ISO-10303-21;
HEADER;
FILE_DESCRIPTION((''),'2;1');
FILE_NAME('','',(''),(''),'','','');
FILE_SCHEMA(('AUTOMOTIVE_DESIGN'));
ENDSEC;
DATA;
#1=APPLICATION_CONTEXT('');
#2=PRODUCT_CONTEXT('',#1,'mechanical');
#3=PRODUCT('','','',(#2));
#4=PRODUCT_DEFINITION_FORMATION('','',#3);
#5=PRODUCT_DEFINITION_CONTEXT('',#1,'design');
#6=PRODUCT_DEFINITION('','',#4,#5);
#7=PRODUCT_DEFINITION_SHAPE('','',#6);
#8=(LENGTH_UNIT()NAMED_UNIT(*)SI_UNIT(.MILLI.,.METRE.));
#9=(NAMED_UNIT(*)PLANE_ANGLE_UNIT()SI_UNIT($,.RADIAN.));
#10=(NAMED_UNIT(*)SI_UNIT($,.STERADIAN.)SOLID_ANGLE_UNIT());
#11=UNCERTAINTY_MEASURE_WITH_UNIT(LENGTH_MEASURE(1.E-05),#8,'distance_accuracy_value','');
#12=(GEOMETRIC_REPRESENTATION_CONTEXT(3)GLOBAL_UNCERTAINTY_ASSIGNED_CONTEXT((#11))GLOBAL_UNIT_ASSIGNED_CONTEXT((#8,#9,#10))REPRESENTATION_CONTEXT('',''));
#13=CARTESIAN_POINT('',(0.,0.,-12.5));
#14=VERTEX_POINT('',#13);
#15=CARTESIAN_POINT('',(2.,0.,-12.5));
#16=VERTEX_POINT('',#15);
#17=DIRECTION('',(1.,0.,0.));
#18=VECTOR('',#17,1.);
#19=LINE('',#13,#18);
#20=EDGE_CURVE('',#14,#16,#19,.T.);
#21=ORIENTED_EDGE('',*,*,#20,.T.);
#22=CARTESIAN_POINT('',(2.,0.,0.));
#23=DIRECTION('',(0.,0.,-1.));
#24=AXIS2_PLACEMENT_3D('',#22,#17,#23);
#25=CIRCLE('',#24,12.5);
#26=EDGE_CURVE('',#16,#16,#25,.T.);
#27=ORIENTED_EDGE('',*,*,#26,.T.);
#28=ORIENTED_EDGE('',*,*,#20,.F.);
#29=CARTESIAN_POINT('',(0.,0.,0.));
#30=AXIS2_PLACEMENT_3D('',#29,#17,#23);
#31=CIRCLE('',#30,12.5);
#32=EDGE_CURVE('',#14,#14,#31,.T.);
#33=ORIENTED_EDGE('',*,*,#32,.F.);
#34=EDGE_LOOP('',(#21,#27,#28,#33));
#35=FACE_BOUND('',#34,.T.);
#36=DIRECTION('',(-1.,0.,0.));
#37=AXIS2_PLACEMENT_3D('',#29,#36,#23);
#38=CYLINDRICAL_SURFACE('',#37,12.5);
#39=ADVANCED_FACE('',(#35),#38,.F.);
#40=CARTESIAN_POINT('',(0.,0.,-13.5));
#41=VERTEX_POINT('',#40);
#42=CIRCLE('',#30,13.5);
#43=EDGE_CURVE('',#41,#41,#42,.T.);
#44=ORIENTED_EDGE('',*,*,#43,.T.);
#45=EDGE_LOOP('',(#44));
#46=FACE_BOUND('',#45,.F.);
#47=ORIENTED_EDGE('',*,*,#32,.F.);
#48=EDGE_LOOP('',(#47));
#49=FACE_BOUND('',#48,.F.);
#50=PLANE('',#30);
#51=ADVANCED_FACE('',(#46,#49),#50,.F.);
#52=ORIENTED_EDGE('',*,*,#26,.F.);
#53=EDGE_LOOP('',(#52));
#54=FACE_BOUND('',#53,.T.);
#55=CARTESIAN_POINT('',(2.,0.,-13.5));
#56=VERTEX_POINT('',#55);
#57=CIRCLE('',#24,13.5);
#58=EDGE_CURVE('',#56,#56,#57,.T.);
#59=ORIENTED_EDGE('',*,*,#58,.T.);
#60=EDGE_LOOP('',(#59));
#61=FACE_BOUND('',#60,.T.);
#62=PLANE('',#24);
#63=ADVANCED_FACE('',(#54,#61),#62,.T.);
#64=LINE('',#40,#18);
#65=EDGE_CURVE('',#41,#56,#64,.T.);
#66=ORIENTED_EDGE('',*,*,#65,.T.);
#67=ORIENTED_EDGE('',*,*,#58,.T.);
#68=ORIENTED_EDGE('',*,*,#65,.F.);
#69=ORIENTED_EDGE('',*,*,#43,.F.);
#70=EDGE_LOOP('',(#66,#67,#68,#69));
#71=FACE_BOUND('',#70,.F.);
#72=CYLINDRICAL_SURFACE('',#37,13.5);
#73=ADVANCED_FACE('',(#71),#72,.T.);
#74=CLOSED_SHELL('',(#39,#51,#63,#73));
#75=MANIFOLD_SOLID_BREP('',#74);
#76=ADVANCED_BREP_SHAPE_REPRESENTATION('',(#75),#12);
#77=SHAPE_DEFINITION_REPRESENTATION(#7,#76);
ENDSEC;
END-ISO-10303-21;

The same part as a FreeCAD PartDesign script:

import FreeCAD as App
import Part
import Sketcher

V = App.Vector
Q = App.Units.Quantity

doc = App.newDocument("Part")
body = doc.addObject("PartDesign::Body", "Body")

# Sketch on YZ plane
sketch1 = body.newObject("Sketcher::SketchObject", "Sketch")
sketch1.AttachmentSupport = (doc.getObject("YZ_Plane"), [""])
sketch1.MapMode = "FlatFace"
sketch1.addGeometry([
    Part.Circle(V(0, 0, 0), V(0, 0, 1), 14),
    Part.Circle(V(0, 0, 0), V(0, 0, 1), 12),
], False)
sketch1.addConstraint([
    Sketcher.Constraint("Coincident", 0, 3, -1, 1),
    Sketcher.Constraint("Coincident", 1, 3, -1, 1),
    Sketcher.Constraint("Diameter", 0, Q("27 mm")),
    Sketcher.Constraint("Diameter", 1, Q("25 mm")),
])
pad1 = body.newObject("PartDesign::Pad", "Pad")
pad1.Profile = sketch1
pad1.Length = 2

doc.recompute()
